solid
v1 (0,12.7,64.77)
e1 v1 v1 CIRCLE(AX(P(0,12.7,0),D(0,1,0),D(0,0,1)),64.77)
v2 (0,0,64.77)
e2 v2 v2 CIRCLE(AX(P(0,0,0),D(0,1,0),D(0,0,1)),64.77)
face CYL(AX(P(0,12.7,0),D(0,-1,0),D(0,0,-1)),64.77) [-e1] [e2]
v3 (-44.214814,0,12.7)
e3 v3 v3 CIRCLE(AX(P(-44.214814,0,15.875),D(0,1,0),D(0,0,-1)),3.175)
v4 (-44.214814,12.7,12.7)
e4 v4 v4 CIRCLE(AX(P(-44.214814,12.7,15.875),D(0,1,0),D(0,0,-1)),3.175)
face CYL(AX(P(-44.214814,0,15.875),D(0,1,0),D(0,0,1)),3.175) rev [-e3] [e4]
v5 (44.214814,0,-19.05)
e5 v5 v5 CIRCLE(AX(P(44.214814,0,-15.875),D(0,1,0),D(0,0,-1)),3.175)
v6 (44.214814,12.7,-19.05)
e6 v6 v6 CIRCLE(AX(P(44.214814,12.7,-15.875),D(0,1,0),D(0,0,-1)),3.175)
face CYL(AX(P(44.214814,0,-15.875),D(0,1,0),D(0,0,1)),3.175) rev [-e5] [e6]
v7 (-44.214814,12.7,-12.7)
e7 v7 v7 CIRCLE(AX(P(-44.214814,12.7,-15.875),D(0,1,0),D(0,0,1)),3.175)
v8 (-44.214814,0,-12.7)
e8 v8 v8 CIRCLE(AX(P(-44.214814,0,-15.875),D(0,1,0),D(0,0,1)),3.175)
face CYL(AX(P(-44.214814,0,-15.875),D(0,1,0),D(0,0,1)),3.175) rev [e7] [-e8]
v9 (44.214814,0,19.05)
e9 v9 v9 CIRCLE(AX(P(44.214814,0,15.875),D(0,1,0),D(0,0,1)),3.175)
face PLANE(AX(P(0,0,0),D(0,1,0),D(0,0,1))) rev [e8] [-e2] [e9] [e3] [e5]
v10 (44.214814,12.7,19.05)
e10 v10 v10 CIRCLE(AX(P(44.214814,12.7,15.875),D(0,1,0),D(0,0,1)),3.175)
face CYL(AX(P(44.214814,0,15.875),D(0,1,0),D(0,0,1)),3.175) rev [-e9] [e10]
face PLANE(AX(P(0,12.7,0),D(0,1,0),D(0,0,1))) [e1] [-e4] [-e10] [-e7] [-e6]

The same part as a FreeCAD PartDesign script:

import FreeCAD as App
import Part
import Sketcher

V = App.Vector
Q = App.Units.Quantity

doc = App.newDocument("Part")
body = doc.addObject("PartDesign::Body", "Body")

sketch1 = body.newObject("Sketcher::SketchObject", "Sketch")
sketch1.AttachmentSupport = (doc.getObject("XZ_Plane"), [""])
sketch1.MapMode = "FlatFace"
sketch1.addGeometry(Part.Circle(V(0, 0, 0), V(0, 0, 1), 65), False)
sketch1.addConstraint(Sketcher.Constraint("Coincident", 0, 3, -1, 1))
sketch1.addConstraint(Sketcher.Constraint("Diameter", 0, Q("5.1 in")))
pad1 = body.newObject("PartDesign::Pad", "Pad")
pad1.Profile = sketch1
pad1.Length = Q("0.5 in")
pad1.Reversed = True

sketch2 = body.newObject("Sketcher::SketchObject", "Sketch001")
sketch2.AttachmentSupport = (doc.getObject("XZ_Plane"), [""])
sketch2.MapMode = "FlatFace"
sketch2.AttachmentOffset = App.Placement(V(0, 0, -0.5 * 25.4), App.Rotation())
sketch2.addGeometry(Part.Circle(V(-44.2, -15.9, 0), V(0, 0, 1), 3.2), False)
sketch2.addGeometry(Part.Circle(V(-44.2, 15.9, 0), V(0, 0, 1), 3.2), False)
sketch2.addGeometry(Part.Circle(V(44.2, 15.9, 0), V(0, 0, 1), 3.2), False)
sketch2.addGeometry(Part.Circle(V(44.2, -15.9, 0), V(0, 0, 1), 3.2), False)
sketch2.addConstraint(Sketcher.Constraint("Equal", 0, 1))
sketch2.addConstraint(Sketcher.Constraint("Equal", 1, 2))
sketch2.addConstraint(Sketcher.Constraint("Equal", 2, 3))
sketch2.addConstraint(Sketcher.Constraint("Symmetric", 0, 3, 2, 3, -1, 1))
sketch2.addConstraint(Sketcher.Constraint("Symmetric", 1, 3, 3, 3, -1, 1))
sketch2.addConstraint(Sketcher.Constraint("Symmetric", 1, 3, 2, 3, -2))
sketch2.addConstraint(Sketcher.Constraint("Diameter", 0, Q("0.25 in")))
sketch2.addConstraint(Sketcher.Constraint("DistanceY", 0, 3, 1, 3, Q("1.25 in")))
sketch2.addConstraint(Sketcher.Constraint("DistanceX", 0, 3, -1, 1, 44.214814))
pocket1 = body.newObject("PartDesign::Pocket", "Pocket")
pocket1.Profile = sketch2
pocket1.Type = "ThroughAll"
pocket1.Reversed = True

doc.recompute()
